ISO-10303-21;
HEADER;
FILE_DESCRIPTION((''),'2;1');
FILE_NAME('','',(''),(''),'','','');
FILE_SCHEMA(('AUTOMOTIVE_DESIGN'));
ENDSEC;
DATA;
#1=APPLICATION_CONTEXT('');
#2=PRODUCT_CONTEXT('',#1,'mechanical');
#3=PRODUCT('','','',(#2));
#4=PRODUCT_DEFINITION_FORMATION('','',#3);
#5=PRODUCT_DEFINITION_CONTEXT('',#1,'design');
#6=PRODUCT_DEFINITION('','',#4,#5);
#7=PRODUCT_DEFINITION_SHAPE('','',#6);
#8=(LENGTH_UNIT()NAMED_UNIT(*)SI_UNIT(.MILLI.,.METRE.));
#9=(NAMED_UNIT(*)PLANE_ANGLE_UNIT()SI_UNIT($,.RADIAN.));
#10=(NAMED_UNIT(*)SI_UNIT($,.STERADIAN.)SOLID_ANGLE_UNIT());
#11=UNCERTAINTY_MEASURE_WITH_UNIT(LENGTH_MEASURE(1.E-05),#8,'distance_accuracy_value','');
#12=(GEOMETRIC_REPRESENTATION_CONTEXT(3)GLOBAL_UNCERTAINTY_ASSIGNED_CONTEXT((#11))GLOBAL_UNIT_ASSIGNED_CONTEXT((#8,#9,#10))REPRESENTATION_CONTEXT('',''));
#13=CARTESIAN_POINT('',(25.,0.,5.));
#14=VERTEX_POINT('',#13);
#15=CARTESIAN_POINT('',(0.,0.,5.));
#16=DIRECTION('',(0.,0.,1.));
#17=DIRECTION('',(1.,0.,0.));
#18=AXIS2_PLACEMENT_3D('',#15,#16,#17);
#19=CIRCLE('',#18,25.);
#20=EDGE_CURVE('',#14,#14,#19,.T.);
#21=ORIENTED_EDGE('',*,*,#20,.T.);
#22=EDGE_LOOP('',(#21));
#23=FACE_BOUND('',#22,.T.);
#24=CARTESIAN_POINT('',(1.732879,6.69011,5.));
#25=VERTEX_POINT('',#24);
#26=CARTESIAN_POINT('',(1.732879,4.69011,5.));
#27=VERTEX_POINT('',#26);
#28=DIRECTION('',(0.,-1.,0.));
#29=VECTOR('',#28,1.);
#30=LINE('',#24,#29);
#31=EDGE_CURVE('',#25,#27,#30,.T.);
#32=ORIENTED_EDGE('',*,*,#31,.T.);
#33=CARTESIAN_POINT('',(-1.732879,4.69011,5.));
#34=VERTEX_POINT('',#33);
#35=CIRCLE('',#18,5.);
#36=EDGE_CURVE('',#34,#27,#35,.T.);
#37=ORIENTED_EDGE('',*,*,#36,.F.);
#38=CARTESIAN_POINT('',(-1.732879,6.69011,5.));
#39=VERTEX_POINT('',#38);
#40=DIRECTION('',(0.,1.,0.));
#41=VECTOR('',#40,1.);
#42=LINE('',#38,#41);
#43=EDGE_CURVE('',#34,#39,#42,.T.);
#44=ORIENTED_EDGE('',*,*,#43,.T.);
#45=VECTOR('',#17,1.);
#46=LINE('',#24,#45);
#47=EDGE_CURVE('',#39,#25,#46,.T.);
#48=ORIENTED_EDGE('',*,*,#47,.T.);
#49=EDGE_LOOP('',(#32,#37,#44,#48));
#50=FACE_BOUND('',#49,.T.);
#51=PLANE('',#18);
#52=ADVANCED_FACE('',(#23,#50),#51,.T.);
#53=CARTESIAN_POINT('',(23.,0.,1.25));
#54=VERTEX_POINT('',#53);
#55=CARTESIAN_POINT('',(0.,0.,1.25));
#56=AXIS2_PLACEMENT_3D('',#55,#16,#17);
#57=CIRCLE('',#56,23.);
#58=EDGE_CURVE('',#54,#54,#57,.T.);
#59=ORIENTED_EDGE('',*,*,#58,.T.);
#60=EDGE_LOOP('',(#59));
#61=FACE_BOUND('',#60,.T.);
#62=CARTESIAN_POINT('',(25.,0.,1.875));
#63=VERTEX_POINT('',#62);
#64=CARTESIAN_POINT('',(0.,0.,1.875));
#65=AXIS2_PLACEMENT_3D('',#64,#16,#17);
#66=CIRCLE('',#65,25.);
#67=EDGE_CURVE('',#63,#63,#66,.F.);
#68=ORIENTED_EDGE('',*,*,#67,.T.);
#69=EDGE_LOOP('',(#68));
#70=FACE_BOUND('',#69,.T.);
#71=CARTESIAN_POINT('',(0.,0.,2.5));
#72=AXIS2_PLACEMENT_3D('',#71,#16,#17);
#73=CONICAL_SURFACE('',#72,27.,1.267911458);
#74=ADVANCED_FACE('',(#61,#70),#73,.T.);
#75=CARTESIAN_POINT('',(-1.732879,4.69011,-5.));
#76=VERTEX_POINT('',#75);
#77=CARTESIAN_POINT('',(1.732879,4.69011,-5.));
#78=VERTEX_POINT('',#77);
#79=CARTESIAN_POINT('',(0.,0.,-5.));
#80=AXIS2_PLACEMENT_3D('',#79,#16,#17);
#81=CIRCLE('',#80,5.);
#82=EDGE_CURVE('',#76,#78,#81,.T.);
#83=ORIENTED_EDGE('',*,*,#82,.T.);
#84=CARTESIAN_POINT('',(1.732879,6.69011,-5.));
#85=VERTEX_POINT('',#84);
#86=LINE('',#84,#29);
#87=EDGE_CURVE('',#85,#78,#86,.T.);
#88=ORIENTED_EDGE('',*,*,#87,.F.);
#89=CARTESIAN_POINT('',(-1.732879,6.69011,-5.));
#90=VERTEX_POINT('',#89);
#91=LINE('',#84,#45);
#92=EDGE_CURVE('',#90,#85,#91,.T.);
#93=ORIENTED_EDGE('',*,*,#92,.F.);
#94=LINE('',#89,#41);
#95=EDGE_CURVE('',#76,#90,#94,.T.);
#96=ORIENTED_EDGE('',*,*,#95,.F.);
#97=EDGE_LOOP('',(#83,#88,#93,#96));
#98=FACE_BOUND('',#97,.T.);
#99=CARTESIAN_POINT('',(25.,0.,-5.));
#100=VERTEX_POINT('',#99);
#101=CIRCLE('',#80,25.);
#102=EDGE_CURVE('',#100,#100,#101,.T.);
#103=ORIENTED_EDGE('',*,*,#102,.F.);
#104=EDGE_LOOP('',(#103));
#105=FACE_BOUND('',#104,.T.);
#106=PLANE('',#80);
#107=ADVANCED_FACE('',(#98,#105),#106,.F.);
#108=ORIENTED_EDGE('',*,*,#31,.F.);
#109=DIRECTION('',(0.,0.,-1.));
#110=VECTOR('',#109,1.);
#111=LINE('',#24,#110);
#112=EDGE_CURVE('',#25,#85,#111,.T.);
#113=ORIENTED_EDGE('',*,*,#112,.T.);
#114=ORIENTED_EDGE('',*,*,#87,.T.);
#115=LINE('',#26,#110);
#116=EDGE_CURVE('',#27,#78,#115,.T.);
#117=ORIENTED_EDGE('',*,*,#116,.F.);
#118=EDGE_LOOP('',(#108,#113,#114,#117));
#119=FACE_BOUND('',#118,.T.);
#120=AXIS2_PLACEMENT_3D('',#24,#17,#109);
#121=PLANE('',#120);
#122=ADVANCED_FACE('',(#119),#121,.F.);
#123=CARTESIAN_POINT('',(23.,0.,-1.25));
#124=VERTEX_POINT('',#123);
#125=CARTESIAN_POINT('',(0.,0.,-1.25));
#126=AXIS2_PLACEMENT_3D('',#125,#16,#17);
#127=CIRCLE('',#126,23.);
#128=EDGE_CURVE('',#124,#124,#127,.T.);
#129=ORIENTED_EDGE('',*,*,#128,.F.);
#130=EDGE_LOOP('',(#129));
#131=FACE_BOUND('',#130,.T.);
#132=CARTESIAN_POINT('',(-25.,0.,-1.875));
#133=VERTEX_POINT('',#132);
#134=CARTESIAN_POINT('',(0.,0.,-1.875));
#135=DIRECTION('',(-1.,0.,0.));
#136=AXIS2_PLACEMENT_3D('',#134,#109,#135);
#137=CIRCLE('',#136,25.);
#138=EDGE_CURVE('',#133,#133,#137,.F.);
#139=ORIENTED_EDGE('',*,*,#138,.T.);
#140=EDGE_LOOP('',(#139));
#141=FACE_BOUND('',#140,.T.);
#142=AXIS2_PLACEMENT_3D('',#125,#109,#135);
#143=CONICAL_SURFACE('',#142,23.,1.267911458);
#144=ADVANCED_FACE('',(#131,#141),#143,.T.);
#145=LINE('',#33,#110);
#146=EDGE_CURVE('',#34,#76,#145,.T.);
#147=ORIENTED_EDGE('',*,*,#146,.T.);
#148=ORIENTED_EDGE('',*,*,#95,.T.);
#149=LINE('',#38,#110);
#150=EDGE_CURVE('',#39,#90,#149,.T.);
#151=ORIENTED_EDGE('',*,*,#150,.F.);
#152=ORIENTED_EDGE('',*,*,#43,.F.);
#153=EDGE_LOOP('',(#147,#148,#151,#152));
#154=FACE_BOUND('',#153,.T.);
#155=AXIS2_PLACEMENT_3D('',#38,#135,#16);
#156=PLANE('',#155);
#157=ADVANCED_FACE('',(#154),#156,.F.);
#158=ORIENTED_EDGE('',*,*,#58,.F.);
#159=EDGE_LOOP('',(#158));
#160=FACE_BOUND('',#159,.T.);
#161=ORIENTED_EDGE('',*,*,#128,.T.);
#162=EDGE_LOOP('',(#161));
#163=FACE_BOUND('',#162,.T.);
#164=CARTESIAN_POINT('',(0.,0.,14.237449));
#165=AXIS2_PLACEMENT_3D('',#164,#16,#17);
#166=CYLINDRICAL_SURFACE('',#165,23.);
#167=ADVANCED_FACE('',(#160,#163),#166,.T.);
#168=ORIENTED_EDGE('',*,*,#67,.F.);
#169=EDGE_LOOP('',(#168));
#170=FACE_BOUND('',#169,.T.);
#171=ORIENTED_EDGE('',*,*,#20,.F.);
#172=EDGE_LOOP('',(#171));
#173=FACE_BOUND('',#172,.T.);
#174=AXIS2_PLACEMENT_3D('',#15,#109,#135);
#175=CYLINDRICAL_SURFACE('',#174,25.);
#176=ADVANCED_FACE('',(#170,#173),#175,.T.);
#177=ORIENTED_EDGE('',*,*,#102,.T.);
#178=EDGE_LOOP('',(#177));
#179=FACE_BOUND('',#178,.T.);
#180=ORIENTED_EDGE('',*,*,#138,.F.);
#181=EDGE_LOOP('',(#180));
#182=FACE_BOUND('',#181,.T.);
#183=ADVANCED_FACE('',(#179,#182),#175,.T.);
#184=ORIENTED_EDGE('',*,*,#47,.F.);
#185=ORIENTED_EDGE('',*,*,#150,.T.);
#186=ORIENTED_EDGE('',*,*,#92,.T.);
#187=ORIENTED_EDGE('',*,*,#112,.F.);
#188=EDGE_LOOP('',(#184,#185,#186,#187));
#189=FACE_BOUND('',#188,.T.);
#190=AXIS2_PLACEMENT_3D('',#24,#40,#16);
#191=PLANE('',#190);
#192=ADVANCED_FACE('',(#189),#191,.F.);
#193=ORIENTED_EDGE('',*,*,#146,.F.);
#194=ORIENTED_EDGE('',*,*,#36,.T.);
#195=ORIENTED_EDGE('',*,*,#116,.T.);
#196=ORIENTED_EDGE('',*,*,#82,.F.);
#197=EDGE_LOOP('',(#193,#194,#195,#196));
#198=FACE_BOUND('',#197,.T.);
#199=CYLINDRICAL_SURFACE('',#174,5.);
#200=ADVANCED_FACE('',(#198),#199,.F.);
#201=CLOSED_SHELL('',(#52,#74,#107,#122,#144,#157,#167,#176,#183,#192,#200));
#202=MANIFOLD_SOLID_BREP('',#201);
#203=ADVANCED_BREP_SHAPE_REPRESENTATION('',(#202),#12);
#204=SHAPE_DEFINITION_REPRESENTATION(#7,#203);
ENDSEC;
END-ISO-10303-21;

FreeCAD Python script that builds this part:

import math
import FreeCAD as App
import Part
import Sketcher
from FreeCAD import Vector
Q = App.Units.Quantity


def add_polygon(sketch, points):
    """Adds a closed chain of lines whose ends are joined by coincident constraints."""
    first, n = sketch.GeometryCount, len(points)
    for a, b in zip(points, points[1:] + points[:1]):
        sketch.addGeometry(Part.LineSegment(App.Vector(*a, 0), App.Vector(*b, 0)), False)
    for i in range(n):
        sketch.addConstraint(Sketcher.Constraint("Coincident", first + i, 2, first + (i + 1) % n, 1))

doc = App.newDocument("Part")
body = doc.addObject("PartDesign::Body", "Body")

sketch1 = doc.addObject("Sketcher::SketchObject", "Sketch")
body.addObject(sketch1)
sketch1.AttachmentSupport = (doc.XY_Plane, [""])
sketch1.MapMode = "FlatFace"
sketch1.addGeometry([
    Part.Circle(Vector(0, 0, 0), Vector(0, 0, 1), 25),
    Part.Circle(Vector(0, 0, 0), Vector(0, 0, 1), 5),
], False)
sketch1.addConstraint([
    Sketcher.Constraint("Coincident", 0, 3, -1, 1),
    Sketcher.Constraint("Coincident", 1, 3, -1, 1),
    Sketcher.Constraint("Diameter", 0, Q("50 mm")),
    Sketcher.Constraint("Diameter", 1, Q("10 mm")),
])
pad1 = doc.addObject("PartDesign::Pad", "Pad")
body.addObject(pad1)
pad1.Profile = sketch1
pad1.Length = 10
pad1.Midplane = True

sketch2 = doc.addObject("Sketcher::SketchObject", "Sketch001")
body.addObject(sketch2)
sketch2.AttachmentSupport = (doc.YZ_Plane, [""])
sketch2.MapMode = "FlatFace"
add_polygon(sketch2, [(27, 2.5), (23, 1.2), (23, -1.2), (27, -2.5)])
sketch2.addConstraint([
    Sketcher.Constraint("Vertical", 1),
    Sketcher.Constraint("Vertical", 3),
    Sketcher.Constraint("Equal", 0, 2),
    Sketcher.Constraint("DistanceY", 3, 1, 3, 2, Q("5 mm")),
    Sketcher.Constraint("DistanceY", 1, 2, 1, 1, Q("2.5 mm")),
    Sketcher.Constraint("DistanceX", -1, 1, 0, 2, Q("23 mm")),
    Sketcher.Constraint("DistanceX", -1, 1, 2, 2, Q("27 mm")),
    Sketcher.Constraint("DistanceY", 2, 2, -1, 1, Q("2.5 mm")),
])
groove = doc.addObject("PartDesign::Groove", "Groove")
body.addObject(groove)
groove.Profile = sketch2
groove.ReferenceAxis = (sketch2, ["V_Axis"])
groove.Angle = 360

sketch3 = doc.addObject("Sketcher::SketchObject", "Sketch002")
body.addObject(sketch3)
sketch3.AttachmentSupport = (doc.XY_Plane, [""])
sketch3.MapMode = "FlatFace"
sketch3.AttachmentOffset = App.Placement(Vector(0, 0, -5), App.Rotation())
sketch3.addGeometry([
    Part.LineSegment(Vector(-1.7, 6.7, 0), Vector(1.7, 6.7, 0)),
    Part.LineSegment(Vector(1.7, 6.7, 0), Vector(1.7, 4.7, 0)),
    Part.ArcOfCircle(Part.Circle(Vector(0, 0, 0), Vector(0, 0, 1), 5), math.radians(70), math.radians(110)),
    Part.LineSegment(Vector(-1.7, 4.7, 0), Vector(-1.7, 6.7, 0)),
], False)
sketch3.addConstraint([
    Sketcher.Constraint("Coincident", 0, 2, 1, 1),
    Sketcher.Constraint("Coincident", 1, 2, 2, 1),
    Sketcher.Constraint("Coincident", 2, 2, 3, 1),
    Sketcher.Constraint("Coincident", 3, 2, 0, 1),
    Sketcher.Constraint("Horizontal", 0),
    Sketcher.Constraint("Vertical", 1),
    Sketcher.Constraint("Vertical", 3),
    Sketcher.Constraint("Coincident", 2, 3, -1, 1),
    Sketcher.Constraint("Horizontal", 1, 2, 2, 2),
    Sketcher.Constraint("Radius", 2, Q("5 mm")),
    Sketcher.Constraint("DistanceY", 1, 2, 1, 1, Q("2 mm")),
    Sketcher.Constraint("DistanceX", 0, 1, 0, 2, Q("3.465758 mm")),
])
pocket1 = doc.addObject("PartDesign::Pocket", "Pocket")
body.addObject(pocket1)
pocket1.Profile = sketch3
pocket1.Length = 10
pocket1.Reversed = True

doc.recompute()
